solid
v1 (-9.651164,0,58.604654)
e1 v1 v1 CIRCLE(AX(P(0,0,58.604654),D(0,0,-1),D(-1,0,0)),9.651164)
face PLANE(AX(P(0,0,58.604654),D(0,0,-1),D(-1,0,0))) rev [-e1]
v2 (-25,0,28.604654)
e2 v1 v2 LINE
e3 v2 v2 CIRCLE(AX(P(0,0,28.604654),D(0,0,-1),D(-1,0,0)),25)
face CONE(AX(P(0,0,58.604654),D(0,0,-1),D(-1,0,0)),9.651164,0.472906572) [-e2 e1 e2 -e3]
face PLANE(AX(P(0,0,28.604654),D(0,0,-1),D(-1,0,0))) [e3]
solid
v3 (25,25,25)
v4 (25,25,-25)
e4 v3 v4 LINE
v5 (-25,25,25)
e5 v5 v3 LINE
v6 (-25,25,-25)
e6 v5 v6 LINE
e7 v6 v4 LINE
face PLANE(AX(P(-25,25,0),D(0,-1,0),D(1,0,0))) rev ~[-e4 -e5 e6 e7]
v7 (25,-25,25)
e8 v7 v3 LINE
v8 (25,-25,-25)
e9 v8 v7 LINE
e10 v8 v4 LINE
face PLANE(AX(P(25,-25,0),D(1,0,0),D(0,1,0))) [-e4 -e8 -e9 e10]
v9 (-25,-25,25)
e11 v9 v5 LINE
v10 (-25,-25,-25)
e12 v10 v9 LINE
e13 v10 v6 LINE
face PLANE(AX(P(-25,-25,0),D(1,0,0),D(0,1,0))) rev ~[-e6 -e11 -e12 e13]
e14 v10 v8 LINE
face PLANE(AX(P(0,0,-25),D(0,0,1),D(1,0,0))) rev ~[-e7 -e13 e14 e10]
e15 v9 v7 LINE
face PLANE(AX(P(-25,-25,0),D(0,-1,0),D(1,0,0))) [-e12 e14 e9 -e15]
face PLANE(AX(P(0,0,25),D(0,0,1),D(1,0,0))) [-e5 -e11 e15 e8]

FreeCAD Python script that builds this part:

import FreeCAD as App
import Part
import Sketcher
from FreeCAD import Vector
Q = App.Units.Quantity


def add_polygon(sketch, points):
    """Adds a closed chain of lines whose ends are joined by coincident constraints."""
    first, n = sketch.GeometryCount, len(points)
    for a, b in zip(points, points[1:] + points[:1]):
        sketch.addGeometry(Part.LineSegment(App.Vector(*a, 0), App.Vector(*b, 0)), False)
    for i in range(n):
        sketch.addConstraint(Sketcher.Constraint("Coincident", first + i, 2, first + (i + 1) % n, 1))

doc = App.newDocument("Part")
body = doc.addObject("PartDesign::Body", "Body")

sketch1 = body.newObject("Sketcher::SketchObject", "Sketch")
sketch1.AttachmentSupport = (doc.getObject("XY_Plane"), [""])
sketch1.MapMode = "FlatFace"
add_polygon(sketch1, [(-25, 25), (-25, -25), (25, -25), (25, 25)])
sketch1.addConstraint(Sketcher.Constraint("Vertical", 0))
sketch1.addConstraint(Sketcher.Constraint("Horizontal", 1))
sketch1.addConstraint(Sketcher.Constraint("Vertical", 2))
sketch1.addConstraint(Sketcher.Constraint("Horizontal", 3))
sketch1.addConstraint(Sketcher.Constraint("Symmetric", 0, 2, 2, 2, -1, 1))
sketch1.addConstraint(Sketcher.Constraint("Equal", 3, 0))
sketch1.addConstraint(Sketcher.Constraint("DistanceX", 1, 1, 1, 2, Q("50 mm")))
pad1 = body.newObject("PartDesign::Pad", "Pad")
pad1.Profile = sketch1
pad1.Length = 50
pad1.Midplane = True
body2 = doc.addObject("PartDesign::Body", "Body001")

sketch2 = body2.newObject("Sketcher::SketchObject", "Sketch001")
sketch2.AttachmentSupport = (doc.getObject("XZ_Plane001"), [""])
sketch2.MapMode = "FlatFace"
add_polygon(sketch2, [(0, 28.604654), (0, 58.604654), (-9.651164, 58.604654), (-25, 28.604654)])
sketch2.addConstraint(Sketcher.Constraint("Vertical", 0))
sketch2.addConstraint(Sketcher.Constraint("Horizontal", 1))
sketch2.addConstraint(Sketcher.Constraint("Horizontal", 3))
sketch2.addConstraint(Sketcher.Constraint("PointOnObject", 0, 2, -2))
sketch2.addConstraint(Sketcher.Constraint("DistanceX", 3, 1, 3, 2, Q("25 mm")))
sketch2.addConstraint(Sketcher.Constraint("DistanceY", 0, 1, 0, 2, Q("30 mm")))
sketch2.addConstraint(Sketcher.Constraint("Distance", 2, Q("33.698468 mm")))
sketch2.addConstraint(Sketcher.Constraint("DistanceY", -1, 1, 0, 2, Q("58.604654 mm")))
revolution = body2.newObject("PartDesign::Revolution", "Revolution")
revolution.Profile = sketch2
revolution.ReferenceAxis = (sketch2, ["V_Axis"])
revolution.Angle = 360

doc.recompute()
